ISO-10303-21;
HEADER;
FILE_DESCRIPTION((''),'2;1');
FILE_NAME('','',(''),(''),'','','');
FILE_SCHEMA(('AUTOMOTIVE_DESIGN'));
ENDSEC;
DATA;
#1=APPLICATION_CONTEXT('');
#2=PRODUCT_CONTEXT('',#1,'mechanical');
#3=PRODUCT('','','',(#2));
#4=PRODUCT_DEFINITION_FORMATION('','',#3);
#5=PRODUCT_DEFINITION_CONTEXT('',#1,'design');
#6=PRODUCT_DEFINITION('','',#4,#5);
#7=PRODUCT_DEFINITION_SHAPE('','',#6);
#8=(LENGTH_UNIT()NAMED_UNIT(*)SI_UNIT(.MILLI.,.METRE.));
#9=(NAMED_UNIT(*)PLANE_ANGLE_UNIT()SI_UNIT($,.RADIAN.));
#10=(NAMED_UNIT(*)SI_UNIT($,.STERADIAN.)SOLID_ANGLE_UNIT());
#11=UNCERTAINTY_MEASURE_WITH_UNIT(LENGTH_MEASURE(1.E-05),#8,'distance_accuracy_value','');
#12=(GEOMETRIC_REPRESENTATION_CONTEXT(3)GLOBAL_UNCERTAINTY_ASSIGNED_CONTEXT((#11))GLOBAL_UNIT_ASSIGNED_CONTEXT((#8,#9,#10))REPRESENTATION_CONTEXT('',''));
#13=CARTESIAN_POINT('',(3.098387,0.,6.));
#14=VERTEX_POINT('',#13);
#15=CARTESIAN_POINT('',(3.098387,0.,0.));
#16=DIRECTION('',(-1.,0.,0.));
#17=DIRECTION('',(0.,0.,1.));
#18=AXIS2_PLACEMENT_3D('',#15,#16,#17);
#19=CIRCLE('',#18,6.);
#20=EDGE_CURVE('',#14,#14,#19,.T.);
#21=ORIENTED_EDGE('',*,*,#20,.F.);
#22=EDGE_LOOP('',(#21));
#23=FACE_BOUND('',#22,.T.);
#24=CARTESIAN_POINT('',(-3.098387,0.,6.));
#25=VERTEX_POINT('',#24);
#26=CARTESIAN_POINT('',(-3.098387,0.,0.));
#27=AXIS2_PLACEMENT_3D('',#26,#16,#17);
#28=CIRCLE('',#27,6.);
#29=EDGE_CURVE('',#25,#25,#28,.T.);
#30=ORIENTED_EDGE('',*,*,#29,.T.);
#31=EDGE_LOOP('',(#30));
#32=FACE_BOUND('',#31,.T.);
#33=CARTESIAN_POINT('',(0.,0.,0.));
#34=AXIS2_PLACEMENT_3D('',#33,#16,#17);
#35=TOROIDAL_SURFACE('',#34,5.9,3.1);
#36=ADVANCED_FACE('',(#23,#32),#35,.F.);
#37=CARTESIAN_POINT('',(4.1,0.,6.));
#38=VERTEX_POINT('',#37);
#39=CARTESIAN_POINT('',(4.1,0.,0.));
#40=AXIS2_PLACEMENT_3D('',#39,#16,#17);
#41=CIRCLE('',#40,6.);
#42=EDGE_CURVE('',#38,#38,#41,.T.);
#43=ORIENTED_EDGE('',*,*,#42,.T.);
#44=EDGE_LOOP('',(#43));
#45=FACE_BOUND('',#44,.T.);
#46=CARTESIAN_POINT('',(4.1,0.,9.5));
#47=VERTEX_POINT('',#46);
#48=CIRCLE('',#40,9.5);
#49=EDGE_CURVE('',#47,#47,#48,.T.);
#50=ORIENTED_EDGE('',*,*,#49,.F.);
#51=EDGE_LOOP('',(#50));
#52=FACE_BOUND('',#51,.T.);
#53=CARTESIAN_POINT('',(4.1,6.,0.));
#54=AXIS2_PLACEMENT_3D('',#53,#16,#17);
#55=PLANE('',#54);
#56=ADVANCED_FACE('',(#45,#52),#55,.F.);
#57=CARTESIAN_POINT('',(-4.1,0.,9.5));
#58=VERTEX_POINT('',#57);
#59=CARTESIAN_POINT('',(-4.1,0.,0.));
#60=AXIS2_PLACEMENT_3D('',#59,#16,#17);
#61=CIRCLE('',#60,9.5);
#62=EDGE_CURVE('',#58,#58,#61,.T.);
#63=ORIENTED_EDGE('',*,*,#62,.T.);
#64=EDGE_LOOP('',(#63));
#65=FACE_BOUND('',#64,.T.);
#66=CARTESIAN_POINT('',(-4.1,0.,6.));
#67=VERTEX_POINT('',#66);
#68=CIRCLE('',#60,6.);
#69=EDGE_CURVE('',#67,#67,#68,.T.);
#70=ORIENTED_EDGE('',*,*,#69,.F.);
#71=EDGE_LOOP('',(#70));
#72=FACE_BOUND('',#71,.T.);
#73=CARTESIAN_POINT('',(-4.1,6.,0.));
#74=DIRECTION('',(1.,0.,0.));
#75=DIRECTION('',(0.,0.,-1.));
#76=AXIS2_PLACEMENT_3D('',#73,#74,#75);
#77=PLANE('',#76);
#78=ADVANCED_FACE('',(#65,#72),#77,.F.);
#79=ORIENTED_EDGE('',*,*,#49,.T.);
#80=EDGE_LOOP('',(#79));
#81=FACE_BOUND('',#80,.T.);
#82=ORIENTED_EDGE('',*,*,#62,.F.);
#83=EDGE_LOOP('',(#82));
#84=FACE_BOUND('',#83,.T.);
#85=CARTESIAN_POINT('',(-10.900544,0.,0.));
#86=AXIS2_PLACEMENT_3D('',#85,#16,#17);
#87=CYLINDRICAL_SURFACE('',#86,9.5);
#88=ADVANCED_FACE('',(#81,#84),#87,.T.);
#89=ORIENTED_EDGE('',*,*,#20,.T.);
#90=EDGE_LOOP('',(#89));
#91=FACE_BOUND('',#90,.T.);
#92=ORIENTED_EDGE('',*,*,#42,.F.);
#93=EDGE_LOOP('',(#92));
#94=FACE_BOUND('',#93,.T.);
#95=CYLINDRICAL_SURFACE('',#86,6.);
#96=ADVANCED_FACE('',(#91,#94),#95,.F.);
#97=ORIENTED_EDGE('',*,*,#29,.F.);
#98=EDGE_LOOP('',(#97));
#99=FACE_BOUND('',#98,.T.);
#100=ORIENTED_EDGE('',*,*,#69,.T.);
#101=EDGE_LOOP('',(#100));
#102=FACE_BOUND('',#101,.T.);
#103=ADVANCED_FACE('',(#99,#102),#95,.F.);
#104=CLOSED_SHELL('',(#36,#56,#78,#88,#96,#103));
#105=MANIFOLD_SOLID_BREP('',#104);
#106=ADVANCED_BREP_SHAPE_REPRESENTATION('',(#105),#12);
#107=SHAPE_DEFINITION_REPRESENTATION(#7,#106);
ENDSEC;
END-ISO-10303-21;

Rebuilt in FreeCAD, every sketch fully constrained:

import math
import FreeCAD as App
import Part
import Sketcher
from FreeCAD import Vector

doc = App.newDocument("Part")
body = doc.addObject("PartDesign::Body", "Body")

# Sketch on XY plane
sketch1 = body.newObject("Sketcher::SketchObject", "Sketch")
sketch1.AttachmentSupport = (doc.getObject("XY_Plane"), [""])
sketch1.MapMode = "FlatFace"
sketch1.addGeometry(Part.LineSegment(Vector(3.098387, 6, 0), Vector(4.1, 6, 0)), False)
sketch1.addGeometry(Part.LineSegment(Vector(4.1, 6, 0), Vector(4.1, 9.5, 0)), False)
sketch1.addGeometry(Part.LineSegment(Vector(4.1, 9.5, 0), Vector(-4.1, 9.5, 0)), False)
sketch1.addGeometry(Part.LineSegment(Vector(-4.1, 9.5, 0), Vector(-4.1, 6, 0)), False)
sketch1.addGeometry(Part.LineSegment(Vector(-4.1, 6, 0), Vector(-3.098387, 6, 0)), False)
sketch1.addGeometry(Part.ArcOfCircle(Part.Circle(Vector(0, 5.9, 0), Vector(0, 0, 1), 3.1), math.radians(1.848572), math.radians(178.151428)), False)
sketch1.addConstraint(Sketcher.Constraint("Coincident", 0, 2, 1, 1))
sketch1.addConstraint(Sketcher.Constraint("Coincident", 1, 2, 2, 1))
sketch1.addConstraint(Sketcher.Constraint("Coincident", 2, 2, 3, 1))
sketch1.addConstraint(Sketcher.Constraint("Coincident", 3, 2, 4, 1))
sketch1.addConstraint(Sketcher.Constraint("Coincident", 4, 2, 5, 2))
sketch1.addConstraint(Sketcher.Constraint("Coincident", 5, 1, 0, 1))
sketch1.addConstraint(Sketcher.Constraint("Horizontal", 0))
sketch1.addConstraint(Sketcher.Constraint("Vertical", 1))
sketch1.addConstraint(Sketcher.Constraint("Horizontal", 2))
sketch1.addConstraint(Sketcher.Constraint("Vertical", 3))
sketch1.addConstraint(Sketcher.Constraint("Horizontal", 4))
sketch1.addConstraint(Sketcher.Constraint("Symmetric", 0, 2, 3, 2, -2))
sketch1.addConstraint(Sketcher.Constraint("PointOnObject", 5, 3, -2))
sketch1.addConstraint(Sketcher.Constraint("Radius", 5, 3.1))
sketch1.addConstraint(Sketcher.Constraint("DistanceX", 2, 2, 2, 1, 8.2))
sketch1.addConstraint(Sketcher.Constraint("DistanceY", 1, 1, 1, 2, 3.5))
sketch1.addConstraint(Sketcher.Constraint("DistanceY", -1, 1, 0, 2, 6.0))
sketch1.addConstraint(Sketcher.Constraint("DistanceY", -1, 1, 5, 3, 5.9))
revolution = body.newObject("PartDesign::Revolution", "Revolution")
revolution.Profile = sketch1
revolution.ReferenceAxis = (sketch1, ["H_Axis"])
revolution.Angle = 360

doc.recompute()
